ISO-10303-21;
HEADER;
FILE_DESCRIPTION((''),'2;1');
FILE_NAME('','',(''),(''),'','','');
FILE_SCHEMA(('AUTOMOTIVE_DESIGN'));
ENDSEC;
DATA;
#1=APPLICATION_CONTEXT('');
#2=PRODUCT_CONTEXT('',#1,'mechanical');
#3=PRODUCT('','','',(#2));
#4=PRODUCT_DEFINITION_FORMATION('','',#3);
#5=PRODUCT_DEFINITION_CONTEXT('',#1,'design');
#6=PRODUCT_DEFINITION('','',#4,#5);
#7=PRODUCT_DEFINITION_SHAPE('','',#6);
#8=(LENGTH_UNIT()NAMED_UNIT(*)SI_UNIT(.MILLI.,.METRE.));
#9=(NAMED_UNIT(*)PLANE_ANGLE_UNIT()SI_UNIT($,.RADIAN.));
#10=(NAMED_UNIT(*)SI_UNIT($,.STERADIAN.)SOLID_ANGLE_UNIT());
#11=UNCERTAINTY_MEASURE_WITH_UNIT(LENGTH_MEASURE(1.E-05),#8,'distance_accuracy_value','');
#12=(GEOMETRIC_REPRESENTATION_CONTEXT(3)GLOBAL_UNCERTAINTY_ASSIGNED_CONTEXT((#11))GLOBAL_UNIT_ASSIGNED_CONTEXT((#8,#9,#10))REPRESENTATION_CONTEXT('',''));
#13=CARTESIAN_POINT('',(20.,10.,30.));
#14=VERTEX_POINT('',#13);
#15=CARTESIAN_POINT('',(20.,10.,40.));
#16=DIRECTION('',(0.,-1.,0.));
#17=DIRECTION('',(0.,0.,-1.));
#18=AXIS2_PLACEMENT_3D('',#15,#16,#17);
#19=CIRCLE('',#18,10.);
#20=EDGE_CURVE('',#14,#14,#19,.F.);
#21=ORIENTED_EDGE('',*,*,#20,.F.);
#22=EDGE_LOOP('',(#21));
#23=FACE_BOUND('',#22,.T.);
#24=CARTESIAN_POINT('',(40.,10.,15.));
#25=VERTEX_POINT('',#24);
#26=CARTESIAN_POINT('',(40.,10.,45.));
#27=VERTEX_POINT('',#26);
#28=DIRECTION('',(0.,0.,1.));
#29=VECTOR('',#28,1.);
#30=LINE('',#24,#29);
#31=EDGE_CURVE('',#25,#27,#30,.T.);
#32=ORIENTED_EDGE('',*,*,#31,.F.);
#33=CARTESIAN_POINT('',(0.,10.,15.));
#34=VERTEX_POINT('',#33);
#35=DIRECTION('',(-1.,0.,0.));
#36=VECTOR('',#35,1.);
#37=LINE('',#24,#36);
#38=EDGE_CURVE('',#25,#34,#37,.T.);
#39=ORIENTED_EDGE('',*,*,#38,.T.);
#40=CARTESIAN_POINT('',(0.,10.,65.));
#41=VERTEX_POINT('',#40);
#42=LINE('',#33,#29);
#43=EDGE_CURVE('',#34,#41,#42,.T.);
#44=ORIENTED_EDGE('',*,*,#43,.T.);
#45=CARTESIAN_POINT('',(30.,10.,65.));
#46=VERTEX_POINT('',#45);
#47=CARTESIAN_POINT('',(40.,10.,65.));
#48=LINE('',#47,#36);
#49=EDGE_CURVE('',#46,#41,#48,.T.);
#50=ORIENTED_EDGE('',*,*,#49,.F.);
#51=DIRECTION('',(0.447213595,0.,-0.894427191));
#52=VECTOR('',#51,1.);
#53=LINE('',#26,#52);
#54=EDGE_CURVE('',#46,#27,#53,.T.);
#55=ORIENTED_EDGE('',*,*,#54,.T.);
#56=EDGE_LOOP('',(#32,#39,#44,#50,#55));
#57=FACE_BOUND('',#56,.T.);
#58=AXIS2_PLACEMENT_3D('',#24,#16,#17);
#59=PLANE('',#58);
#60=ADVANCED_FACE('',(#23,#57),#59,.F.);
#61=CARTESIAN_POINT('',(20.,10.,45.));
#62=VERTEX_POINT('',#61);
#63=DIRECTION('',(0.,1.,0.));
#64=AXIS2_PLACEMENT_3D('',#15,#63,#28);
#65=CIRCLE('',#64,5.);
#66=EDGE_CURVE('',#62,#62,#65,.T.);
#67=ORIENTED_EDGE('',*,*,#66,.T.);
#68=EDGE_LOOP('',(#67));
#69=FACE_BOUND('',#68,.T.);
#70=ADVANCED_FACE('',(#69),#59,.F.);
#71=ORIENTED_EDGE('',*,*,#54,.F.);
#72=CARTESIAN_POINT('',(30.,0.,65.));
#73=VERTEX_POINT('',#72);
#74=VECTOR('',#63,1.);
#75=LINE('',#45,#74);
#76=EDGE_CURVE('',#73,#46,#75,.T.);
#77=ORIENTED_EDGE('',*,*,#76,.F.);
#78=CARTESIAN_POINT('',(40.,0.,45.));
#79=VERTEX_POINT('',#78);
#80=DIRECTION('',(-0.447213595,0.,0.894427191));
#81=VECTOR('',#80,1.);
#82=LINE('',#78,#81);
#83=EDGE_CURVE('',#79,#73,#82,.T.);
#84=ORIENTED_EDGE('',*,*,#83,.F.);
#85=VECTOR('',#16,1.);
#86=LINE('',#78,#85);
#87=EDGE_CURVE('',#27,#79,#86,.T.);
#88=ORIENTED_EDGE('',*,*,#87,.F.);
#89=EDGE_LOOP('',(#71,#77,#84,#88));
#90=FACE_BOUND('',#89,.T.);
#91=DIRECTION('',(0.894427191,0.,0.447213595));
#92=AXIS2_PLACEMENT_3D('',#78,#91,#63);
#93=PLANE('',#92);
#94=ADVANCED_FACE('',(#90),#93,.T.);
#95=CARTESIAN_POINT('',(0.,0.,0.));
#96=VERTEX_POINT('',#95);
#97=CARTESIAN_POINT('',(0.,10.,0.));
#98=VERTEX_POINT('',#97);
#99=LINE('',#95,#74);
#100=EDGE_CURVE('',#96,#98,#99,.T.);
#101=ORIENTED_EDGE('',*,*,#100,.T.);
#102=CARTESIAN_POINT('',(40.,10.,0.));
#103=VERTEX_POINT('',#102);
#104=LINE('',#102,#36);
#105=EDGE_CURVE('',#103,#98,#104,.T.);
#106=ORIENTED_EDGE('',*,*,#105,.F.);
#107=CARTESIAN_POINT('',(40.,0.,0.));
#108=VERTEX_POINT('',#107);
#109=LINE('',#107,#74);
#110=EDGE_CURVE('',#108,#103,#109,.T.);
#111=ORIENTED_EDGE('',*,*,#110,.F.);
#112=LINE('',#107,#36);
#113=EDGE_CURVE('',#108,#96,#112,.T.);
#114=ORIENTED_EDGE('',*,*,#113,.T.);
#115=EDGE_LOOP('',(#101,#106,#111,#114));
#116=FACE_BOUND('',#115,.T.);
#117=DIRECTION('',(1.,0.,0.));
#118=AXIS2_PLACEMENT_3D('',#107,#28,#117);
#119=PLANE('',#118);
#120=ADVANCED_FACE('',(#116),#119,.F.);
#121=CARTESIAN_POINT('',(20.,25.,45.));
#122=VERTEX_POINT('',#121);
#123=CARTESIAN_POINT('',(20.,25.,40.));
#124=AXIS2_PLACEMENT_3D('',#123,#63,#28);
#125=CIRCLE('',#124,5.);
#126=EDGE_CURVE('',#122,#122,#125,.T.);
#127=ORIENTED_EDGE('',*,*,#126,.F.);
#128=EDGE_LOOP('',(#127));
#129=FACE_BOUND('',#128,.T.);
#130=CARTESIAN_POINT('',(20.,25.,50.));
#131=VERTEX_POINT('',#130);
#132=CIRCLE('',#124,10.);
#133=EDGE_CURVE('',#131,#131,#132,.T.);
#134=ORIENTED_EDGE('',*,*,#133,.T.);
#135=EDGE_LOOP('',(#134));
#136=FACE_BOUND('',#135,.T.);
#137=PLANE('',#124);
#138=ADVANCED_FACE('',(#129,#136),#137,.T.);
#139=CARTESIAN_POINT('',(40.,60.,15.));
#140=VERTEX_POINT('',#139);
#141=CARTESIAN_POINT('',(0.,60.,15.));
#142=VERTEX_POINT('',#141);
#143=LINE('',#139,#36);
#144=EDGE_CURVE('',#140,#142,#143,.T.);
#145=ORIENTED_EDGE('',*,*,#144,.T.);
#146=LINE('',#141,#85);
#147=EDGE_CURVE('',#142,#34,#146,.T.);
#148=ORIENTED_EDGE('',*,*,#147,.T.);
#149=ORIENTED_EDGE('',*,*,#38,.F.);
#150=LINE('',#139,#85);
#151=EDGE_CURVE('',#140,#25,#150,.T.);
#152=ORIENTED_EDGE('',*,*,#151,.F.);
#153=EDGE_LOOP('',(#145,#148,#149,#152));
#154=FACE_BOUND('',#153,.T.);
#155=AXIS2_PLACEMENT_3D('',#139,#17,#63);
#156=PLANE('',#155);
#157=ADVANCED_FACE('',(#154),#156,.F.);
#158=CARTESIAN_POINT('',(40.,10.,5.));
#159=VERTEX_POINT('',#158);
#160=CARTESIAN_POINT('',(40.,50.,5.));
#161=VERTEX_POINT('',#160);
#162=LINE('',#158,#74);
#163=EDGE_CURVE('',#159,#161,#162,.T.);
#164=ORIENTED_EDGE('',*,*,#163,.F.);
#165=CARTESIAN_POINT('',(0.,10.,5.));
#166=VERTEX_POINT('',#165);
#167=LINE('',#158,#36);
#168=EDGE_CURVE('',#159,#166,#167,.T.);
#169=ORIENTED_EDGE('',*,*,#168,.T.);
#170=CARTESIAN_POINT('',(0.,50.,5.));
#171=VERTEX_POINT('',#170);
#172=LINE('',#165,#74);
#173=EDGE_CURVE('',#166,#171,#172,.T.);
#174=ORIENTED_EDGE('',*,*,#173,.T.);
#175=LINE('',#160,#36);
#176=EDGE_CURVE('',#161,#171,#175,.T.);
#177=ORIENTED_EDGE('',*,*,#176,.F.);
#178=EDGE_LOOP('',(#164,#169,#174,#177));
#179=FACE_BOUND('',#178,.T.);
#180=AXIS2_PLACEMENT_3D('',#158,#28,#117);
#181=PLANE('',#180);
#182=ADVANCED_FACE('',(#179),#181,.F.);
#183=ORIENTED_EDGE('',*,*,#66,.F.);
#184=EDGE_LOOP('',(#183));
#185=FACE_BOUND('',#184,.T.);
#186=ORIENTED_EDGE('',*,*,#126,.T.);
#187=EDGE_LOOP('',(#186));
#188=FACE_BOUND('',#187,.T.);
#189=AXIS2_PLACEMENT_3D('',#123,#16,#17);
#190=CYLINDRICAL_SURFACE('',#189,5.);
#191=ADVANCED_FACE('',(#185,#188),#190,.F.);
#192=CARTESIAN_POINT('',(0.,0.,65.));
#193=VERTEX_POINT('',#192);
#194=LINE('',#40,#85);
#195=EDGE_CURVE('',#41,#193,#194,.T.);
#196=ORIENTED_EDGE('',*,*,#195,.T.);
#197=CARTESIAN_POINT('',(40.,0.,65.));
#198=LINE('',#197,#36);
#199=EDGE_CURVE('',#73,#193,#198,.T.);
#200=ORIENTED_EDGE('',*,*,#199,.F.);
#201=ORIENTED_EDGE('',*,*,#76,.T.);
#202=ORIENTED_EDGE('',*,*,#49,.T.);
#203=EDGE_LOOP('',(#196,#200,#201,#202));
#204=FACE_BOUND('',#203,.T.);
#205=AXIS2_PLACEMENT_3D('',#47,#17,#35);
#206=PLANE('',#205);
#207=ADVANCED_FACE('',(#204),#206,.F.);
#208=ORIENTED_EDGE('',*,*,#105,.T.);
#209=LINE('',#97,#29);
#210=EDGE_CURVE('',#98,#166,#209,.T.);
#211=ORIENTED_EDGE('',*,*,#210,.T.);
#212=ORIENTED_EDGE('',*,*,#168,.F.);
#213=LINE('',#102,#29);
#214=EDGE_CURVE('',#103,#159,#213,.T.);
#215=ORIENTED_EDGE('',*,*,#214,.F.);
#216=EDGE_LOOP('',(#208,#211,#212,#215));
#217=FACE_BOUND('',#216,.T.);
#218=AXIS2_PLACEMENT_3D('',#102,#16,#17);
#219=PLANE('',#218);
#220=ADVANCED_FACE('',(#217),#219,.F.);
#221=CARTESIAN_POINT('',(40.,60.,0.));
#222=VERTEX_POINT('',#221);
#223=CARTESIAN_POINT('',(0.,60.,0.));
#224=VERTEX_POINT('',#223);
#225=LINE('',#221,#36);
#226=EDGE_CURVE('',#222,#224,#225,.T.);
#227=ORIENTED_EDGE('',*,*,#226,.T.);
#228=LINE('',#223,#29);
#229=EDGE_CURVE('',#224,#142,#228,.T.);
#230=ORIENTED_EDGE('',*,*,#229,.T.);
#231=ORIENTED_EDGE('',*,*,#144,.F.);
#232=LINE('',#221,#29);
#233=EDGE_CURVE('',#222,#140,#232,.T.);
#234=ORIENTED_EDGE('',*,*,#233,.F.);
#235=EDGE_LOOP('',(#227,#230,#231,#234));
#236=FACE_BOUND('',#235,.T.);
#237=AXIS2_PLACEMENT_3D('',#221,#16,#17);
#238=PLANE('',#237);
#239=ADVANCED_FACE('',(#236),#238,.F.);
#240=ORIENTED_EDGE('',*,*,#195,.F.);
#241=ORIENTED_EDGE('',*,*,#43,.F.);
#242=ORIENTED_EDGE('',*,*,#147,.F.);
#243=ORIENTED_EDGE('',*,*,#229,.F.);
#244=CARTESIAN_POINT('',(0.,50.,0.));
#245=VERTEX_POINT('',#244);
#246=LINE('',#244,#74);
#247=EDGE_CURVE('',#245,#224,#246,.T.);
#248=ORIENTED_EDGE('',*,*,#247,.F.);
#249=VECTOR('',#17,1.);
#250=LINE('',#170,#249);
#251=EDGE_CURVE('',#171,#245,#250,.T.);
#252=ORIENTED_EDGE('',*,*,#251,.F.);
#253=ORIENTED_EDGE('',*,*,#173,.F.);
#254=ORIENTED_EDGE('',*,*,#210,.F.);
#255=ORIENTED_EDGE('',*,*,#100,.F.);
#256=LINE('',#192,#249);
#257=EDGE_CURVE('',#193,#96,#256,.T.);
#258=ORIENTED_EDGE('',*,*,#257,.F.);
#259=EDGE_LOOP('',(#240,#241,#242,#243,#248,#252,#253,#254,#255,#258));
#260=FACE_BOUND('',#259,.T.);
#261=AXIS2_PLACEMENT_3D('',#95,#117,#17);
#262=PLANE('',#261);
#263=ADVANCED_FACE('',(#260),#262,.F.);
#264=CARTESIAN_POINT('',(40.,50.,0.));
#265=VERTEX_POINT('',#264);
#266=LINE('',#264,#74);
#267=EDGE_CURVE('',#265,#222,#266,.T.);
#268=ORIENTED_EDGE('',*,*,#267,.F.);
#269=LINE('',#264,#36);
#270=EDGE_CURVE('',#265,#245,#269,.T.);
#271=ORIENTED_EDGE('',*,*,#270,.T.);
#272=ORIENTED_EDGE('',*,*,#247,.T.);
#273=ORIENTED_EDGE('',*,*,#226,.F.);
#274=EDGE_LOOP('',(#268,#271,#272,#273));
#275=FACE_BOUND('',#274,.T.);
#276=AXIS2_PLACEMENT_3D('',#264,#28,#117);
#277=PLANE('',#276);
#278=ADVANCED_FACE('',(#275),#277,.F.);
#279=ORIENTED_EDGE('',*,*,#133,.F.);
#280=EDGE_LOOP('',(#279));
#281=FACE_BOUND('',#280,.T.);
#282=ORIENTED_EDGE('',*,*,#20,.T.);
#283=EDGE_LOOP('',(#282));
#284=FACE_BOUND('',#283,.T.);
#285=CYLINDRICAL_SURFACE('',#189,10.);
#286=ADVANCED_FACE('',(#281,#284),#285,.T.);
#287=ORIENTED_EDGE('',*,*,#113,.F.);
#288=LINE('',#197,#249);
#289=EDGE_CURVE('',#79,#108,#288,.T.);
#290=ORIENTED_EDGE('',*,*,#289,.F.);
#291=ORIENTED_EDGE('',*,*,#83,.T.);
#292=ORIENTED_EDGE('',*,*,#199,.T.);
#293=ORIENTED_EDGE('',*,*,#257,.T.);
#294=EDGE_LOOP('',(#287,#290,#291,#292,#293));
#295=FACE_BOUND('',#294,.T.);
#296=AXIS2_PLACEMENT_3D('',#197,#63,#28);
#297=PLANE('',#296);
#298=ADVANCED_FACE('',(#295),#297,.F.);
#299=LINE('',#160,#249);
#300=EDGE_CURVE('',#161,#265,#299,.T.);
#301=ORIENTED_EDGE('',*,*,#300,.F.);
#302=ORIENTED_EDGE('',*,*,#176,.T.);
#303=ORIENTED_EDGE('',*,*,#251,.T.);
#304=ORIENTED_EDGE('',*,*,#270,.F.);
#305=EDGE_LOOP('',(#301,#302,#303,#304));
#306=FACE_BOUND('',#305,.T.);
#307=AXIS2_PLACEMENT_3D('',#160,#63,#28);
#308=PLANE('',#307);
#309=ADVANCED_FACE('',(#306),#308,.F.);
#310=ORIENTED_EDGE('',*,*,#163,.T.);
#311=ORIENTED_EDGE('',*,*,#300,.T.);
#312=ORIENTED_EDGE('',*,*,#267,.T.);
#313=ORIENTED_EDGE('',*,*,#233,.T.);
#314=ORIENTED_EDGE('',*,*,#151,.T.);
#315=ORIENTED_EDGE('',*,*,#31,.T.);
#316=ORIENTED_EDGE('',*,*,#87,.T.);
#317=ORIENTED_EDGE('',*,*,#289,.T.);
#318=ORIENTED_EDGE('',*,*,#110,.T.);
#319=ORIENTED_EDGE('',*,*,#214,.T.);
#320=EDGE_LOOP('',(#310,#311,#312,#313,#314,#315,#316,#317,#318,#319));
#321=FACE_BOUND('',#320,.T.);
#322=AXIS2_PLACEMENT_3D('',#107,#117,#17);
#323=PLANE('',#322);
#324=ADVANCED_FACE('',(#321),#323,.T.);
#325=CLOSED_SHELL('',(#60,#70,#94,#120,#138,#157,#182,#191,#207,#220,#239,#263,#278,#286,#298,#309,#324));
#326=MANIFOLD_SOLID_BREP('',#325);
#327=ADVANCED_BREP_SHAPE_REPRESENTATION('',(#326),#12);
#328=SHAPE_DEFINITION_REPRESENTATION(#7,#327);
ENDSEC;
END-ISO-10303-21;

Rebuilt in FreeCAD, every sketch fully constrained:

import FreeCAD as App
import Part
import Sketcher
from FreeCAD import Vector


def edges_at(feature, points):
    """Names of the edges that pass closest to the given points."""
    edges = feature.Shape.Edges
    near = lambda p: min(range(len(edges)), key=lambda i: edges[i].distToShape(Part.Vertex(*p))[0])
    return sorted({f"Edge{near(p) + 1}" for p in points})


def add_polygon(sketch, points):
    """Adds a closed chain of lines whose ends are joined by coincident constraints."""
    first, n = sketch.GeometryCount, len(points)
    for a, b in zip(points, points[1:] + points[:1]):
        sketch.addGeometry(Part.LineSegment(App.Vector(*a, 0), App.Vector(*b, 0)), False)
    for i in range(n):
        sketch.addConstraint(Sketcher.Constraint("Coincident", first + i, 2, first + (i + 1) % n, 1))

doc = App.newDocument("Part")
params = doc.addObject("Spreadsheet::Sheet", "Params")
for row, (alias, value) in enumerate([
    ("sketch1_width", "10 mm"),
    ("sketch1_width2", "40 mm"),
    ("sketch1_height", "5 mm"),
    ("sketch1_height2", "15 mm"),
    ("pad1_length", "40 mm"),
    ("chamfer_size", "10 mm"),
    ("chamfer_size2", "20 mm"),
    ("sketch2_diameter", "20 mm"),
    ("sketch2_diameter2", "10 mm"),
    ("pad2_length", "15 mm"),
], start=1):
    params.set(f"A{row}", alias)
    params.set(f"B{row}", "=" + value)
    params.setAlias(f"B{row}", alias)

body = doc.addObject("PartDesign::Body", "Body")

sketch1 = body.newObject("Sketcher::SketchObject", "Sketch")
sketch1.AttachmentSupport = (doc.getObject("YZ_Plane"), [""])
sketch1.MapMode = "FlatFace"
add_polygon(sketch1, [(0, 0), (10, 0), (10, 5), (50, 5), (50, 0), (60, 0), (60, 15), (10, 15), (10, 65), (0, 65)])
sketch1.addConstraint(Sketcher.Constraint("Horizontal", 0))
sketch1.addConstraint(Sketcher.Constraint("Vertical", 1))
sketch1.addConstraint(Sketcher.Constraint("Horizontal", 2))
sketch1.addConstraint(Sketcher.Constraint("Vertical", 3))
sketch1.addConstraint(Sketcher.Constraint("Horizontal", 4))
sketch1.addConstraint(Sketcher.Constraint("Vertical", 5))
sketch1.addConstraint(Sketcher.Constraint("Horizontal", 6))
sketch1.addConstraint(Sketcher.Constraint("Vertical", 7))
sketch1.addConstraint(Sketcher.Constraint("Horizontal", 8))
sketch1.addConstraint(Sketcher.Constraint("Vertical", 9))
sketch1.addConstraint(Sketcher.Constraint("Coincident", 9, 2, -1, 1))
sketch1.addConstraint(Sketcher.Constraint("PointOnObject", 3, 2, -1))
sketch1.addConstraint(Sketcher.Constraint("Vertical", 1, 2, 6, 2))
sketch1.addConstraint(Sketcher.Constraint("Equal", 0, 4))
sketch1.addConstraint(Sketcher.Constraint("Equal", 6, 7))
sketch1.addConstraint(Sketcher.Constraint("DistanceX", 0, 1, 0, 2, 10.0))
sketch1.addConstraint(Sketcher.Constraint("DistanceX", 2, 1, 2, 2, 40.0))
sketch1.addConstraint(Sketcher.Constraint("DistanceY", 1, 1, 1, 2, 5.0))
sketch1.addConstraint(Sketcher.Constraint("DistanceY", 5, 1, 5, 2, 15.0))
sketch1.setExpression("Constraints[25]", "Params.sketch1_width")
sketch1.setExpression("Constraints[26]", "Params.sketch1_width2")
sketch1.setExpression("Constraints[27]", "Params.sketch1_height")
sketch1.setExpression("Constraints[28]", "Params.sketch1_height2")
pad1 = body.newObject("PartDesign::Pad", "Pad")
pad1.Profile = sketch1
pad1.setExpression("Length", "Params.pad1_length")
doc.recompute()

chamfer = body.newObject("PartDesign::Chamfer", "Chamfer")
chamfer.Base = (pad1, edges_at(pad1, [(40, 5, 65)]))
chamfer.ChamferType = "Two distances"
chamfer.setExpression("Size", "Params.chamfer_size")
chamfer.setExpression("Size2", "Params.chamfer_size2")

sketch2 = body.newObject("Sketcher::SketchObject", "Sketch001")
sketch2.AttachmentSupport = (doc.getObject("XZ_Plane"), [""])
sketch2.MapMode = "FlatFace"
sketch2.AttachmentOffset = App.Placement(Vector(0, 0, -10), App.Rotation())
sketch2.addGeometry(Part.Circle(Vector(20, 40, 0), Vector(0, 0, 1), 10), False)
sketch2.addGeometry(Part.Circle(Vector(20, 40, 0), Vector(0, 0, 1), 5), False)
sketch2.addConstraint(Sketcher.Constraint("Coincident", 1, 3, 0, 3))
sketch2.addConstraint(Sketcher.Constraint("Diameter", 0, 20.0))
sketch2.addConstraint(Sketcher.Constraint("Diameter", 1, 10.0))
sketch2.addConstraint(Sketcher.Constraint("DistanceX", -1, 1, 0, 3, 20.0))
sketch2.addConstraint(Sketcher.Constraint("DistanceY", -1, 1, 0, 3, 40.0))
sketch2.setExpression("Constraints[1]", "Params.sketch2_diameter")
sketch2.setExpression("Constraints[2]", "Params.sketch2_diameter2")
pad2 = body.newObject("PartDesign::Pad", "Pad001")
pad2.Profile = sketch2
pad2.setExpression("Length", "Params.pad2_length")
pad2.Reversed = True

doc.recompute()
